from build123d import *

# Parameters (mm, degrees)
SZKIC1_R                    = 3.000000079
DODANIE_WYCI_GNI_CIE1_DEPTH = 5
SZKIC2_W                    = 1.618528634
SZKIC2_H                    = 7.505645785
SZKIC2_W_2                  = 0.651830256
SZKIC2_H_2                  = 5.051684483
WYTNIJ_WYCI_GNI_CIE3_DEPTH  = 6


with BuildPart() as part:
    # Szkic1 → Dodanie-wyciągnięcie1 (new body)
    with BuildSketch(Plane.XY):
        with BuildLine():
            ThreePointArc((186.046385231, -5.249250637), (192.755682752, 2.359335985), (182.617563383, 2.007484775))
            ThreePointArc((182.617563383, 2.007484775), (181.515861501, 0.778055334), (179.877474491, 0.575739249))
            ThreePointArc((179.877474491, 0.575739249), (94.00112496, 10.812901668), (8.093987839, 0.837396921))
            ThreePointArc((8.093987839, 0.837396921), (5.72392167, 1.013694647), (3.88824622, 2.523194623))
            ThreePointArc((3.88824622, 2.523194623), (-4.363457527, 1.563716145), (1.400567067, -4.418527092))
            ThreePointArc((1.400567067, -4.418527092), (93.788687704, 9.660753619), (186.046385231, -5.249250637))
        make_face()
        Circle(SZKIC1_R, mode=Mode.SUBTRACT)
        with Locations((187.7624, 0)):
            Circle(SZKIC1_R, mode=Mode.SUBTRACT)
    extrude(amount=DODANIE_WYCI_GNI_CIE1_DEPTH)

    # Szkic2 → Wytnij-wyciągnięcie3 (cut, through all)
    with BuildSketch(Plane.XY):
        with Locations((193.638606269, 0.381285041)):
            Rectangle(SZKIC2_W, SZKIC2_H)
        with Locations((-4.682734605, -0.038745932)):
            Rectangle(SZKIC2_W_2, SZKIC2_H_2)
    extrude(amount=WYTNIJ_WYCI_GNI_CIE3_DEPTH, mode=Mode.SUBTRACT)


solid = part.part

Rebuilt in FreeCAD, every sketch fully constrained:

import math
import FreeCAD as App
import Part
import Sketcher

V = App.Vector

doc = App.newDocument("Part")
body = doc.addObject("PartDesign::Body", "Body")

# Sketch on XY plane
sketch1 = body.newObject("Sketcher::SketchObject", "Sketch")
sketch1.AttachmentSupport = (doc.getObject("XY_Plane"), [""])
sketch1.MapMode = "FlatFace"
sketch1.addGeometry([
    Part.ArcOfCircle(Part.Circle(V(187.7624, 0, 0), V(0, 0, 1), 5.522621), math.radians(-108.102911), math.radians(158.684565)),  # 0
    Part.ArcOfCircle(Part.Circle(V(180.426803, 2.862307, 0), V(0, 0, 1), 2.351627), math.radians(-103.508818), math.radians(-21.315435)),  # 1
    Part.ArcOfCircle(Part.Circle(V(93.437484, -359.22879, 0), V(0, 0, 1), 370.042121), math.radians(76.491182), math.radians(103.334274)),  # 2
    Part.ArcOfCircle(Part.Circle(V(7.187031, 4.663871, 0), V(0, 0, 1), 3.932489), math.radians(-147.019303), math.radians(-76.665726)),  # 3
    Part.ArcOfCircle(Part.Circle(V(0, 0, 0), V(0, 0, 1), 4.635188), math.radians(32.980697), math.radians(287.587366)),  # 4
    Part.ArcOfCircle(Part.Circle(V(92.433269, -291.609671, 0), V(0, 0, 1), 301.273474), math.radians(71.897089), math.radians(107.587366)),  # 5
    Part.Circle(V(0, 0, 0), V(0, 0, 1), 3),  # 6
    Part.Circle(V(187.7624, 0, 0), V(0, 0, 1), 3),  # 7
], False)
sketch1.addConstraint([
    Sketcher.Constraint("Tangent", 0, 2, 1, 2),
    Sketcher.Constraint("Tangent", 1, 1, 2, 1),
    Sketcher.Constraint("Tangent", 2, 2, 3, 2),
    Sketcher.Constraint("Tangent", 3, 1, 4, 1),
    Sketcher.Constraint("Tangent", 4, 2, 5, 2),
    Sketcher.Constraint("Tangent", 5, 1, 0, 1),
    Sketcher.Constraint("Coincident", 4, 3, -1, 1),
    Sketcher.Constraint("Coincident", 6, 3, -1, 1),
    Sketcher.Constraint("Coincident", 7, 3, 0, 3),
    Sketcher.Constraint("Equal", 6, 7),
    Sketcher.Constraint("PointOnObject", 0, 3, -1),
    Sketcher.Constraint("Diameter", 6, 6.0),
    Sketcher.Constraint("Radius", 0, 5.522621),
    Sketcher.Constraint("Radius", 2, 370.042121),
    Sketcher.Constraint("Radius", 3, 3.932489),
    Sketcher.Constraint("Radius", 4, 4.635188),
    Sketcher.Constraint("Radius", 1, 2.351627),
    Sketcher.Constraint("Radius", 5, 301.273474),
    Sketcher.Constraint("DistanceX", -1, 1, 0, 3, 187.7624),
    Sketcher.Constraint("DistanceY", 2, 3, -1, 1, 359.22879),
    Sketcher.Constraint("DistanceX", -1, 1, 3, 3, 7.187031),
])
pad1 = body.newObject("PartDesign::Pad", "Pad")
pad1.Profile = sketch1
pad1.Length = 5

# Sketch on XY plane
sketch2 = body.newObject("Sketcher::SketchObject", "Sketch001")
sketch2.AttachmentSupport = (doc.getObject("XY_Plane"), [""])
sketch2.MapMode = "FlatFace"
sketch2.addGeometry([
    Part.LineSegment(V(192.829342, 4.134108, 0), V(192.829342, -3.371538, 0)),  # 0
    Part.LineSegment(V(192.829342, -3.371538, 0), V(194.447871, -3.371538, 0)),  # 1
    Part.LineSegment(V(194.447871, -3.371538, 0), V(194.447871, 4.134108, 0)),  # 2
    Part.LineSegment(V(194.447871, 4.134108, 0), V(192.829342, 4.134108, 0)),  # 3
    Part.LineSegment(V(-5.00865, 2.487096, 0), V(-5.00865, -2.564588, 0)),  # 4
    Part.LineSegment(V(-5.00865, -2.564588, 0), V(-4.356819, -2.564588, 0)),  # 5
    Part.LineSegment(V(-4.356819, -2.564588, 0), V(-4.356819, 2.487096, 0)),  # 6
    Part.LineSegment(V(-4.356819, 2.487096, 0), V(-5.00865, 2.487096, 0)),  # 7
], False)
sketch2.addConstraint([
    Sketcher.Constraint("Coincident", 0, 2, 1, 1),
    Sketcher.Constraint("Coincident", 1, 2, 2, 1),
    Sketcher.Constraint("Coincident", 2, 2, 3, 1),
    Sketcher.Constraint("Coincident", 3, 2, 0, 1),
    Sketcher.Constraint("Coincident", 4, 2, 5, 1),
    Sketcher.Constraint("Coincident", 5, 2, 6, 1),
    Sketcher.Constraint("Coincident", 6, 2, 7, 1),
    Sketcher.Constraint("Coincident", 7, 2, 4, 1),
    Sketcher.Constraint("Vertical", 0),
    Sketcher.Constraint("Horizontal", 1),
    Sketcher.Constraint("Vertical", 2),
    Sketcher.Constraint("Horizontal", 3),
    Sketcher.Constraint("Vertical", 4),
    Sketcher.Constraint("Horizontal", 5),
    Sketcher.Constraint("Vertical", 6),
    Sketcher.Constraint("Horizontal", 7),
    Sketcher.Constraint("DistanceX", 1, 1, 1, 2, 1.618529),
    Sketcher.Constraint("DistanceX", 5, 1, 5, 2, 0.65183),
    Sketcher.Constraint("DistanceY", 0, 2, 0, 1, 7.505646),
    Sketcher.Constraint("DistanceY", 4, 2, 4, 1, 5.051684),
    Sketcher.Constraint("DistanceX", -1, 1, 0, 2, 192.829342),
    Sketcher.Constraint("DistanceX", 4, 2, -1, 1, 5.00865),
    Sketcher.Constraint("DistanceY", 4, 2, -1, 1, 2.564588),
    Sketcher.Constraint("DistanceY", 0, 2, 4, 2, 0.80695),
])
pocket1 = body.newObject("PartDesign::Pocket", "Pocket")
pocket1.Profile = sketch2
pocket1.Type = "ThroughAll"
pocket1.Reversed = True

doc.recompute()
